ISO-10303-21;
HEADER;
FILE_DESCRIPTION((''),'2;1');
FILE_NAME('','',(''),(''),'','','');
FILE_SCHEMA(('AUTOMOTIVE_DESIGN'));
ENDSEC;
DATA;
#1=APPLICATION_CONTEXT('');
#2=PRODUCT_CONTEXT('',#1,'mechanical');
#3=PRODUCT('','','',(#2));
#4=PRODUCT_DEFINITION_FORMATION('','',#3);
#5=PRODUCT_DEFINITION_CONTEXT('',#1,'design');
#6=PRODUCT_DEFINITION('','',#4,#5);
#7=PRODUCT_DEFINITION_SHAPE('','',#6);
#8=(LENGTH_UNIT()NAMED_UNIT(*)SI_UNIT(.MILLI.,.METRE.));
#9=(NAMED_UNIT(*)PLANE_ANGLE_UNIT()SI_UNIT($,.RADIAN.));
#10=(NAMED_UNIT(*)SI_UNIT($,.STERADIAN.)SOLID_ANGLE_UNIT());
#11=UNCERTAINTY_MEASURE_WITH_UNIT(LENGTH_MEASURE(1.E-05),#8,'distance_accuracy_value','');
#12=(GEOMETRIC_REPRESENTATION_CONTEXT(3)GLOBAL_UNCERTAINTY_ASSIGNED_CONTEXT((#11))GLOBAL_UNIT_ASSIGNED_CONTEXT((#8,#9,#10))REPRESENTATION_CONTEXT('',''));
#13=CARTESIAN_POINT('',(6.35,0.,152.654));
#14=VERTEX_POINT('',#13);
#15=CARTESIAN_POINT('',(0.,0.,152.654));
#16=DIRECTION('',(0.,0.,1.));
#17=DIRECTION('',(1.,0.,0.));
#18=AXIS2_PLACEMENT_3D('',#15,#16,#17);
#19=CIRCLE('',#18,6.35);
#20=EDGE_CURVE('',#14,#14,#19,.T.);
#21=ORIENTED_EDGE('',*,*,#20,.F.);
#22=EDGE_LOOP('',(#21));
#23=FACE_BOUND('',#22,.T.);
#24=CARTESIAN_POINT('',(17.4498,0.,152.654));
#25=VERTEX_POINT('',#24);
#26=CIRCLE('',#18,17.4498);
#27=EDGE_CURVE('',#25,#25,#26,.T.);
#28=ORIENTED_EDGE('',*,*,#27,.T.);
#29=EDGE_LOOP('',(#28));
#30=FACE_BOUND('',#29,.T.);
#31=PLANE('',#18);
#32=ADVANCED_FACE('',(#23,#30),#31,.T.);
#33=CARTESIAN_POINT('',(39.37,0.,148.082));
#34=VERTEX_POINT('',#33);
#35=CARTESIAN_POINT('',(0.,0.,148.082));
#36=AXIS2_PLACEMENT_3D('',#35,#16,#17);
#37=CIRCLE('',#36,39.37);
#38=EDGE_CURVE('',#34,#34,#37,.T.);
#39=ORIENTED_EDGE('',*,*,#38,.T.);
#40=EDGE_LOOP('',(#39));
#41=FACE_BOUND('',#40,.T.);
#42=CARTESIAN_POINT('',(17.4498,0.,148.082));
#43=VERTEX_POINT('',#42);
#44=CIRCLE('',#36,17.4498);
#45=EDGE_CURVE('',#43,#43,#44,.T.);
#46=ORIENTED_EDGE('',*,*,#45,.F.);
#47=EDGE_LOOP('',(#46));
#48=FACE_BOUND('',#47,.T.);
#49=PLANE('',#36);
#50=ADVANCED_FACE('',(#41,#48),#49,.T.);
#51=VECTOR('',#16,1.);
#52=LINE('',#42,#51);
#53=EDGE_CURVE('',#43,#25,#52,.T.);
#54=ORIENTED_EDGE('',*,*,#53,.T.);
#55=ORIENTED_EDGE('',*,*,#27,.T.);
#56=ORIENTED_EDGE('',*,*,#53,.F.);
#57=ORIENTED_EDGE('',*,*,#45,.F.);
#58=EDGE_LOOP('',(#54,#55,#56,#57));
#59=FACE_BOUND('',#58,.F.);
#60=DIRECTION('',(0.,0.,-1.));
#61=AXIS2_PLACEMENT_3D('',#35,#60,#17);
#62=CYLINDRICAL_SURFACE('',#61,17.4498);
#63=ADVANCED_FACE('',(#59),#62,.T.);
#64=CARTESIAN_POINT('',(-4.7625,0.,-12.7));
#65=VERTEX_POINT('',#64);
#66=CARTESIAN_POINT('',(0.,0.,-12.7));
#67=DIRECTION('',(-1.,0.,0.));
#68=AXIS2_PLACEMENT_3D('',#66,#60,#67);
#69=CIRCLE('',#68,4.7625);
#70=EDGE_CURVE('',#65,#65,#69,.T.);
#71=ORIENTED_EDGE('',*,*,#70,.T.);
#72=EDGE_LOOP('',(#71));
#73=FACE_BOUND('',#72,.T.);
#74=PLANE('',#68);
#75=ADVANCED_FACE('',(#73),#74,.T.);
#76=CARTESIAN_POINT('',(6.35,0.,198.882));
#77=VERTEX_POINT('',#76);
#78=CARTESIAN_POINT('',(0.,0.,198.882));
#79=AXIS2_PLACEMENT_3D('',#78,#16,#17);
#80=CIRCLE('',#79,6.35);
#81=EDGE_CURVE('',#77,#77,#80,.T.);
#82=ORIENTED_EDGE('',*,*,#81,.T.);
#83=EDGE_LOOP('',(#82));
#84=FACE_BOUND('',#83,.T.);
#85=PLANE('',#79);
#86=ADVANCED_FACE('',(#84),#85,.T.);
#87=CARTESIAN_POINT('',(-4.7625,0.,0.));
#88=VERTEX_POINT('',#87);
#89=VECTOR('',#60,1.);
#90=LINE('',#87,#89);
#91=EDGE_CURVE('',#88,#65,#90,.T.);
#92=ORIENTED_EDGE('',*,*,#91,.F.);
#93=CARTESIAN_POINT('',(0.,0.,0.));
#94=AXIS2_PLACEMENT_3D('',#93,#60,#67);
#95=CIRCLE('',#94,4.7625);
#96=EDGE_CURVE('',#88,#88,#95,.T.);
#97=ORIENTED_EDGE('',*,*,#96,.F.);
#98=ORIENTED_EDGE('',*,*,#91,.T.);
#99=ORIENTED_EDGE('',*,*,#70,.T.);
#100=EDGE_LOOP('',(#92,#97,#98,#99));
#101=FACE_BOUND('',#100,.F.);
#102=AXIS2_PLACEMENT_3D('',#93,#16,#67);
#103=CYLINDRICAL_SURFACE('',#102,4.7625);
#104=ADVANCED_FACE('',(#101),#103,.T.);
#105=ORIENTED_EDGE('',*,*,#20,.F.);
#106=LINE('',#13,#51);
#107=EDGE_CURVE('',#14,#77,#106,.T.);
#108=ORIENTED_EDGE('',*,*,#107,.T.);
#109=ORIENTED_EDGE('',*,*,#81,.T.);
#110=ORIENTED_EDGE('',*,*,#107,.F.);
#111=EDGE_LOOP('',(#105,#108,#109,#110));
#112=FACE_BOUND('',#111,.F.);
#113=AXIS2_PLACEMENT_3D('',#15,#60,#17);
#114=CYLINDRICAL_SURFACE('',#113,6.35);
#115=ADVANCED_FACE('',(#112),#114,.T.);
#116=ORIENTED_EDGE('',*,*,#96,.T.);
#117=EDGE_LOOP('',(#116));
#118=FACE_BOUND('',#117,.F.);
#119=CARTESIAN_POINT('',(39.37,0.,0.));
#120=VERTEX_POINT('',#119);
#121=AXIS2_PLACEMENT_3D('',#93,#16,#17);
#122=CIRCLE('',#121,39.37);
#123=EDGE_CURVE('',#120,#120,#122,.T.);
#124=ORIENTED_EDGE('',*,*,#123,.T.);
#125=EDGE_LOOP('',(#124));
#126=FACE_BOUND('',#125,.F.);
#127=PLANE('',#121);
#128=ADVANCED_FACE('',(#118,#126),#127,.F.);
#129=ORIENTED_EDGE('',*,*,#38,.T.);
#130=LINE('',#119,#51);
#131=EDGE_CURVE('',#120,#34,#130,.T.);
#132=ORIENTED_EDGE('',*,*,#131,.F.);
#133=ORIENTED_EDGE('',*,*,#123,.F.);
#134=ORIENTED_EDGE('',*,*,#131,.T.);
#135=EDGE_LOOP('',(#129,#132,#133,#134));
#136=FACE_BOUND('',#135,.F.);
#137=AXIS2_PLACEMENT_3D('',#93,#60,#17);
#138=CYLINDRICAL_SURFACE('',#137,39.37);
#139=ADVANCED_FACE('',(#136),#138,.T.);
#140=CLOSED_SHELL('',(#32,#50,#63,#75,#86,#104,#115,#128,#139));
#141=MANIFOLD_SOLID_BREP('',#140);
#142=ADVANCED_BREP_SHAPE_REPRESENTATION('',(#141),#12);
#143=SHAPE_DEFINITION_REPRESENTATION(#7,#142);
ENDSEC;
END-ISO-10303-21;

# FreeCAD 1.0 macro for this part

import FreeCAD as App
import Part
import Sketcher

V = App.Vector
Q = App.Units.Quantity

doc = App.newDocument("Part")
params = doc.addObject("Spreadsheet::Sheet", "Params")
for row, (alias, value) in enumerate([
    ("sketch1_diameter", "3.1 in"),
    ("pad1_length", "5.83 in"),
    ("sketch2_diameter", "1.374 in"),
    ("pad2_length", "0.18 in"),
    ("sketch3_diameter", "0.5 in"),
    ("pad3_length", "1.82 in"),
    ("sketch4_diameter", "0.375 in"),
    ("pad4_length", "0.5 in"),
], start=1):
    params.set(f"A{row}", alias)
    params.set(f"B{row}", "=" + value)
    params.setAlias(f"B{row}", alias)

body = doc.addObject("PartDesign::Body", "Body")

sketch1 = doc.addObject("Sketcher::SketchObject", "Sketch")
body.addObject(sketch1)
sketch1.AttachmentSupport = (doc.XY_Plane, [""])
sketch1.MapMode = "FlatFace"
sketch1.addGeometry(Part.Circle(V(0, 0, 0), V(0, 0, 1), 39.37), False)
sketch1.addConstraint(Sketcher.Constraint("Coincident", 0, 3, -1, 1))
sketch1.addConstraint(Sketcher.Constraint("Diameter", 0, Q("3.1 in")))
sketch1.setExpression("Constraints[1]", "Params.sketch1_diameter")
pad1 = doc.addObject("PartDesign::Pad", "Pad")
body.addObject(pad1)
pad1.Profile = sketch1
pad1.setExpression("Length", "Params.pad1_length")

sketch2 = doc.addObject("Sketcher::SketchObject", "Sketch001")
body.addObject(sketch2)
sketch2.AttachmentSupport = (doc.XY_Plane, [""])
sketch2.MapMode = "FlatFace"
sketch2.AttachmentOffset = App.Placement(V(0, 0, 5.83 * 25.4), App.Rotation())
sketch2.addGeometry(Part.Circle(V(0, 0, 0), V(0, 0, 1), 17.4498), False)
sketch2.addConstraint(Sketcher.Constraint("Coincident", 0, 3, -1, 1))
sketch2.addConstraint(Sketcher.Constraint("Diameter", 0, Q("1.374 in")))
sketch2.setExpression("Constraints[1]", "Params.sketch2_diameter")
pad2 = doc.addObject("PartDesign::Pad", "Pad001")
body.addObject(pad2)
pad2.Profile = sketch2
pad2.setExpression("Length", "Params.pad2_length")

sketch3 = doc.addObject("Sketcher::SketchObject", "Sketch002")
body.addObject(sketch3)
sketch3.AttachmentSupport = (doc.XY_Plane, [""])
sketch3.MapMode = "FlatFace"
sketch3.AttachmentOffset = App.Placement(V(0, 0, 6.01 * 25.4), App.Rotation())
sketch3.addGeometry(Part.Circle(V(0, 0, 0), V(0, 0, 1), 6.35), False)
sketch3.addConstraint(Sketcher.Constraint("Coincident", 0, 3, -1, 1))
sketch3.addConstraint(Sketcher.Constraint("Diameter", 0, Q("0.5 in")))
sketch3.setExpression("Constraints[1]", "Params.sketch3_diameter")
pad3 = doc.addObject("PartDesign::Pad", "Pad002")
body.addObject(pad3)
pad3.Profile = sketch3
pad3.setExpression("Length", "Params.pad3_length")

sketch4 = doc.addObject("Sketcher::SketchObject", "Sketch003")
body.addObject(sketch4)
sketch4.AttachmentSupport = (doc.XY_Plane, [""])
sketch4.MapMode = "FlatFace"
sketch4.addGeometry(Part.Circle(V(0, 0, 0), V(0, 0, 1), 4.7625), False)
sketch4.addConstraint(Sketcher.Constraint("Coincident", 0, 3, -1, 1))
sketch4.addConstraint(Sketcher.Constraint("Diameter", 0, Q("0.375 in")))
sketch4.setExpression("Constraints[1]", "Params.sketch4_diameter")
pad4 = doc.addObject("PartDesign::Pad", "Pad003")
body.addObject(pad4)
pad4.Profile = sketch4
pad4.setExpression("Length", "Params.pad4_length")
pad4.Reversed = True

doc.recompute()
